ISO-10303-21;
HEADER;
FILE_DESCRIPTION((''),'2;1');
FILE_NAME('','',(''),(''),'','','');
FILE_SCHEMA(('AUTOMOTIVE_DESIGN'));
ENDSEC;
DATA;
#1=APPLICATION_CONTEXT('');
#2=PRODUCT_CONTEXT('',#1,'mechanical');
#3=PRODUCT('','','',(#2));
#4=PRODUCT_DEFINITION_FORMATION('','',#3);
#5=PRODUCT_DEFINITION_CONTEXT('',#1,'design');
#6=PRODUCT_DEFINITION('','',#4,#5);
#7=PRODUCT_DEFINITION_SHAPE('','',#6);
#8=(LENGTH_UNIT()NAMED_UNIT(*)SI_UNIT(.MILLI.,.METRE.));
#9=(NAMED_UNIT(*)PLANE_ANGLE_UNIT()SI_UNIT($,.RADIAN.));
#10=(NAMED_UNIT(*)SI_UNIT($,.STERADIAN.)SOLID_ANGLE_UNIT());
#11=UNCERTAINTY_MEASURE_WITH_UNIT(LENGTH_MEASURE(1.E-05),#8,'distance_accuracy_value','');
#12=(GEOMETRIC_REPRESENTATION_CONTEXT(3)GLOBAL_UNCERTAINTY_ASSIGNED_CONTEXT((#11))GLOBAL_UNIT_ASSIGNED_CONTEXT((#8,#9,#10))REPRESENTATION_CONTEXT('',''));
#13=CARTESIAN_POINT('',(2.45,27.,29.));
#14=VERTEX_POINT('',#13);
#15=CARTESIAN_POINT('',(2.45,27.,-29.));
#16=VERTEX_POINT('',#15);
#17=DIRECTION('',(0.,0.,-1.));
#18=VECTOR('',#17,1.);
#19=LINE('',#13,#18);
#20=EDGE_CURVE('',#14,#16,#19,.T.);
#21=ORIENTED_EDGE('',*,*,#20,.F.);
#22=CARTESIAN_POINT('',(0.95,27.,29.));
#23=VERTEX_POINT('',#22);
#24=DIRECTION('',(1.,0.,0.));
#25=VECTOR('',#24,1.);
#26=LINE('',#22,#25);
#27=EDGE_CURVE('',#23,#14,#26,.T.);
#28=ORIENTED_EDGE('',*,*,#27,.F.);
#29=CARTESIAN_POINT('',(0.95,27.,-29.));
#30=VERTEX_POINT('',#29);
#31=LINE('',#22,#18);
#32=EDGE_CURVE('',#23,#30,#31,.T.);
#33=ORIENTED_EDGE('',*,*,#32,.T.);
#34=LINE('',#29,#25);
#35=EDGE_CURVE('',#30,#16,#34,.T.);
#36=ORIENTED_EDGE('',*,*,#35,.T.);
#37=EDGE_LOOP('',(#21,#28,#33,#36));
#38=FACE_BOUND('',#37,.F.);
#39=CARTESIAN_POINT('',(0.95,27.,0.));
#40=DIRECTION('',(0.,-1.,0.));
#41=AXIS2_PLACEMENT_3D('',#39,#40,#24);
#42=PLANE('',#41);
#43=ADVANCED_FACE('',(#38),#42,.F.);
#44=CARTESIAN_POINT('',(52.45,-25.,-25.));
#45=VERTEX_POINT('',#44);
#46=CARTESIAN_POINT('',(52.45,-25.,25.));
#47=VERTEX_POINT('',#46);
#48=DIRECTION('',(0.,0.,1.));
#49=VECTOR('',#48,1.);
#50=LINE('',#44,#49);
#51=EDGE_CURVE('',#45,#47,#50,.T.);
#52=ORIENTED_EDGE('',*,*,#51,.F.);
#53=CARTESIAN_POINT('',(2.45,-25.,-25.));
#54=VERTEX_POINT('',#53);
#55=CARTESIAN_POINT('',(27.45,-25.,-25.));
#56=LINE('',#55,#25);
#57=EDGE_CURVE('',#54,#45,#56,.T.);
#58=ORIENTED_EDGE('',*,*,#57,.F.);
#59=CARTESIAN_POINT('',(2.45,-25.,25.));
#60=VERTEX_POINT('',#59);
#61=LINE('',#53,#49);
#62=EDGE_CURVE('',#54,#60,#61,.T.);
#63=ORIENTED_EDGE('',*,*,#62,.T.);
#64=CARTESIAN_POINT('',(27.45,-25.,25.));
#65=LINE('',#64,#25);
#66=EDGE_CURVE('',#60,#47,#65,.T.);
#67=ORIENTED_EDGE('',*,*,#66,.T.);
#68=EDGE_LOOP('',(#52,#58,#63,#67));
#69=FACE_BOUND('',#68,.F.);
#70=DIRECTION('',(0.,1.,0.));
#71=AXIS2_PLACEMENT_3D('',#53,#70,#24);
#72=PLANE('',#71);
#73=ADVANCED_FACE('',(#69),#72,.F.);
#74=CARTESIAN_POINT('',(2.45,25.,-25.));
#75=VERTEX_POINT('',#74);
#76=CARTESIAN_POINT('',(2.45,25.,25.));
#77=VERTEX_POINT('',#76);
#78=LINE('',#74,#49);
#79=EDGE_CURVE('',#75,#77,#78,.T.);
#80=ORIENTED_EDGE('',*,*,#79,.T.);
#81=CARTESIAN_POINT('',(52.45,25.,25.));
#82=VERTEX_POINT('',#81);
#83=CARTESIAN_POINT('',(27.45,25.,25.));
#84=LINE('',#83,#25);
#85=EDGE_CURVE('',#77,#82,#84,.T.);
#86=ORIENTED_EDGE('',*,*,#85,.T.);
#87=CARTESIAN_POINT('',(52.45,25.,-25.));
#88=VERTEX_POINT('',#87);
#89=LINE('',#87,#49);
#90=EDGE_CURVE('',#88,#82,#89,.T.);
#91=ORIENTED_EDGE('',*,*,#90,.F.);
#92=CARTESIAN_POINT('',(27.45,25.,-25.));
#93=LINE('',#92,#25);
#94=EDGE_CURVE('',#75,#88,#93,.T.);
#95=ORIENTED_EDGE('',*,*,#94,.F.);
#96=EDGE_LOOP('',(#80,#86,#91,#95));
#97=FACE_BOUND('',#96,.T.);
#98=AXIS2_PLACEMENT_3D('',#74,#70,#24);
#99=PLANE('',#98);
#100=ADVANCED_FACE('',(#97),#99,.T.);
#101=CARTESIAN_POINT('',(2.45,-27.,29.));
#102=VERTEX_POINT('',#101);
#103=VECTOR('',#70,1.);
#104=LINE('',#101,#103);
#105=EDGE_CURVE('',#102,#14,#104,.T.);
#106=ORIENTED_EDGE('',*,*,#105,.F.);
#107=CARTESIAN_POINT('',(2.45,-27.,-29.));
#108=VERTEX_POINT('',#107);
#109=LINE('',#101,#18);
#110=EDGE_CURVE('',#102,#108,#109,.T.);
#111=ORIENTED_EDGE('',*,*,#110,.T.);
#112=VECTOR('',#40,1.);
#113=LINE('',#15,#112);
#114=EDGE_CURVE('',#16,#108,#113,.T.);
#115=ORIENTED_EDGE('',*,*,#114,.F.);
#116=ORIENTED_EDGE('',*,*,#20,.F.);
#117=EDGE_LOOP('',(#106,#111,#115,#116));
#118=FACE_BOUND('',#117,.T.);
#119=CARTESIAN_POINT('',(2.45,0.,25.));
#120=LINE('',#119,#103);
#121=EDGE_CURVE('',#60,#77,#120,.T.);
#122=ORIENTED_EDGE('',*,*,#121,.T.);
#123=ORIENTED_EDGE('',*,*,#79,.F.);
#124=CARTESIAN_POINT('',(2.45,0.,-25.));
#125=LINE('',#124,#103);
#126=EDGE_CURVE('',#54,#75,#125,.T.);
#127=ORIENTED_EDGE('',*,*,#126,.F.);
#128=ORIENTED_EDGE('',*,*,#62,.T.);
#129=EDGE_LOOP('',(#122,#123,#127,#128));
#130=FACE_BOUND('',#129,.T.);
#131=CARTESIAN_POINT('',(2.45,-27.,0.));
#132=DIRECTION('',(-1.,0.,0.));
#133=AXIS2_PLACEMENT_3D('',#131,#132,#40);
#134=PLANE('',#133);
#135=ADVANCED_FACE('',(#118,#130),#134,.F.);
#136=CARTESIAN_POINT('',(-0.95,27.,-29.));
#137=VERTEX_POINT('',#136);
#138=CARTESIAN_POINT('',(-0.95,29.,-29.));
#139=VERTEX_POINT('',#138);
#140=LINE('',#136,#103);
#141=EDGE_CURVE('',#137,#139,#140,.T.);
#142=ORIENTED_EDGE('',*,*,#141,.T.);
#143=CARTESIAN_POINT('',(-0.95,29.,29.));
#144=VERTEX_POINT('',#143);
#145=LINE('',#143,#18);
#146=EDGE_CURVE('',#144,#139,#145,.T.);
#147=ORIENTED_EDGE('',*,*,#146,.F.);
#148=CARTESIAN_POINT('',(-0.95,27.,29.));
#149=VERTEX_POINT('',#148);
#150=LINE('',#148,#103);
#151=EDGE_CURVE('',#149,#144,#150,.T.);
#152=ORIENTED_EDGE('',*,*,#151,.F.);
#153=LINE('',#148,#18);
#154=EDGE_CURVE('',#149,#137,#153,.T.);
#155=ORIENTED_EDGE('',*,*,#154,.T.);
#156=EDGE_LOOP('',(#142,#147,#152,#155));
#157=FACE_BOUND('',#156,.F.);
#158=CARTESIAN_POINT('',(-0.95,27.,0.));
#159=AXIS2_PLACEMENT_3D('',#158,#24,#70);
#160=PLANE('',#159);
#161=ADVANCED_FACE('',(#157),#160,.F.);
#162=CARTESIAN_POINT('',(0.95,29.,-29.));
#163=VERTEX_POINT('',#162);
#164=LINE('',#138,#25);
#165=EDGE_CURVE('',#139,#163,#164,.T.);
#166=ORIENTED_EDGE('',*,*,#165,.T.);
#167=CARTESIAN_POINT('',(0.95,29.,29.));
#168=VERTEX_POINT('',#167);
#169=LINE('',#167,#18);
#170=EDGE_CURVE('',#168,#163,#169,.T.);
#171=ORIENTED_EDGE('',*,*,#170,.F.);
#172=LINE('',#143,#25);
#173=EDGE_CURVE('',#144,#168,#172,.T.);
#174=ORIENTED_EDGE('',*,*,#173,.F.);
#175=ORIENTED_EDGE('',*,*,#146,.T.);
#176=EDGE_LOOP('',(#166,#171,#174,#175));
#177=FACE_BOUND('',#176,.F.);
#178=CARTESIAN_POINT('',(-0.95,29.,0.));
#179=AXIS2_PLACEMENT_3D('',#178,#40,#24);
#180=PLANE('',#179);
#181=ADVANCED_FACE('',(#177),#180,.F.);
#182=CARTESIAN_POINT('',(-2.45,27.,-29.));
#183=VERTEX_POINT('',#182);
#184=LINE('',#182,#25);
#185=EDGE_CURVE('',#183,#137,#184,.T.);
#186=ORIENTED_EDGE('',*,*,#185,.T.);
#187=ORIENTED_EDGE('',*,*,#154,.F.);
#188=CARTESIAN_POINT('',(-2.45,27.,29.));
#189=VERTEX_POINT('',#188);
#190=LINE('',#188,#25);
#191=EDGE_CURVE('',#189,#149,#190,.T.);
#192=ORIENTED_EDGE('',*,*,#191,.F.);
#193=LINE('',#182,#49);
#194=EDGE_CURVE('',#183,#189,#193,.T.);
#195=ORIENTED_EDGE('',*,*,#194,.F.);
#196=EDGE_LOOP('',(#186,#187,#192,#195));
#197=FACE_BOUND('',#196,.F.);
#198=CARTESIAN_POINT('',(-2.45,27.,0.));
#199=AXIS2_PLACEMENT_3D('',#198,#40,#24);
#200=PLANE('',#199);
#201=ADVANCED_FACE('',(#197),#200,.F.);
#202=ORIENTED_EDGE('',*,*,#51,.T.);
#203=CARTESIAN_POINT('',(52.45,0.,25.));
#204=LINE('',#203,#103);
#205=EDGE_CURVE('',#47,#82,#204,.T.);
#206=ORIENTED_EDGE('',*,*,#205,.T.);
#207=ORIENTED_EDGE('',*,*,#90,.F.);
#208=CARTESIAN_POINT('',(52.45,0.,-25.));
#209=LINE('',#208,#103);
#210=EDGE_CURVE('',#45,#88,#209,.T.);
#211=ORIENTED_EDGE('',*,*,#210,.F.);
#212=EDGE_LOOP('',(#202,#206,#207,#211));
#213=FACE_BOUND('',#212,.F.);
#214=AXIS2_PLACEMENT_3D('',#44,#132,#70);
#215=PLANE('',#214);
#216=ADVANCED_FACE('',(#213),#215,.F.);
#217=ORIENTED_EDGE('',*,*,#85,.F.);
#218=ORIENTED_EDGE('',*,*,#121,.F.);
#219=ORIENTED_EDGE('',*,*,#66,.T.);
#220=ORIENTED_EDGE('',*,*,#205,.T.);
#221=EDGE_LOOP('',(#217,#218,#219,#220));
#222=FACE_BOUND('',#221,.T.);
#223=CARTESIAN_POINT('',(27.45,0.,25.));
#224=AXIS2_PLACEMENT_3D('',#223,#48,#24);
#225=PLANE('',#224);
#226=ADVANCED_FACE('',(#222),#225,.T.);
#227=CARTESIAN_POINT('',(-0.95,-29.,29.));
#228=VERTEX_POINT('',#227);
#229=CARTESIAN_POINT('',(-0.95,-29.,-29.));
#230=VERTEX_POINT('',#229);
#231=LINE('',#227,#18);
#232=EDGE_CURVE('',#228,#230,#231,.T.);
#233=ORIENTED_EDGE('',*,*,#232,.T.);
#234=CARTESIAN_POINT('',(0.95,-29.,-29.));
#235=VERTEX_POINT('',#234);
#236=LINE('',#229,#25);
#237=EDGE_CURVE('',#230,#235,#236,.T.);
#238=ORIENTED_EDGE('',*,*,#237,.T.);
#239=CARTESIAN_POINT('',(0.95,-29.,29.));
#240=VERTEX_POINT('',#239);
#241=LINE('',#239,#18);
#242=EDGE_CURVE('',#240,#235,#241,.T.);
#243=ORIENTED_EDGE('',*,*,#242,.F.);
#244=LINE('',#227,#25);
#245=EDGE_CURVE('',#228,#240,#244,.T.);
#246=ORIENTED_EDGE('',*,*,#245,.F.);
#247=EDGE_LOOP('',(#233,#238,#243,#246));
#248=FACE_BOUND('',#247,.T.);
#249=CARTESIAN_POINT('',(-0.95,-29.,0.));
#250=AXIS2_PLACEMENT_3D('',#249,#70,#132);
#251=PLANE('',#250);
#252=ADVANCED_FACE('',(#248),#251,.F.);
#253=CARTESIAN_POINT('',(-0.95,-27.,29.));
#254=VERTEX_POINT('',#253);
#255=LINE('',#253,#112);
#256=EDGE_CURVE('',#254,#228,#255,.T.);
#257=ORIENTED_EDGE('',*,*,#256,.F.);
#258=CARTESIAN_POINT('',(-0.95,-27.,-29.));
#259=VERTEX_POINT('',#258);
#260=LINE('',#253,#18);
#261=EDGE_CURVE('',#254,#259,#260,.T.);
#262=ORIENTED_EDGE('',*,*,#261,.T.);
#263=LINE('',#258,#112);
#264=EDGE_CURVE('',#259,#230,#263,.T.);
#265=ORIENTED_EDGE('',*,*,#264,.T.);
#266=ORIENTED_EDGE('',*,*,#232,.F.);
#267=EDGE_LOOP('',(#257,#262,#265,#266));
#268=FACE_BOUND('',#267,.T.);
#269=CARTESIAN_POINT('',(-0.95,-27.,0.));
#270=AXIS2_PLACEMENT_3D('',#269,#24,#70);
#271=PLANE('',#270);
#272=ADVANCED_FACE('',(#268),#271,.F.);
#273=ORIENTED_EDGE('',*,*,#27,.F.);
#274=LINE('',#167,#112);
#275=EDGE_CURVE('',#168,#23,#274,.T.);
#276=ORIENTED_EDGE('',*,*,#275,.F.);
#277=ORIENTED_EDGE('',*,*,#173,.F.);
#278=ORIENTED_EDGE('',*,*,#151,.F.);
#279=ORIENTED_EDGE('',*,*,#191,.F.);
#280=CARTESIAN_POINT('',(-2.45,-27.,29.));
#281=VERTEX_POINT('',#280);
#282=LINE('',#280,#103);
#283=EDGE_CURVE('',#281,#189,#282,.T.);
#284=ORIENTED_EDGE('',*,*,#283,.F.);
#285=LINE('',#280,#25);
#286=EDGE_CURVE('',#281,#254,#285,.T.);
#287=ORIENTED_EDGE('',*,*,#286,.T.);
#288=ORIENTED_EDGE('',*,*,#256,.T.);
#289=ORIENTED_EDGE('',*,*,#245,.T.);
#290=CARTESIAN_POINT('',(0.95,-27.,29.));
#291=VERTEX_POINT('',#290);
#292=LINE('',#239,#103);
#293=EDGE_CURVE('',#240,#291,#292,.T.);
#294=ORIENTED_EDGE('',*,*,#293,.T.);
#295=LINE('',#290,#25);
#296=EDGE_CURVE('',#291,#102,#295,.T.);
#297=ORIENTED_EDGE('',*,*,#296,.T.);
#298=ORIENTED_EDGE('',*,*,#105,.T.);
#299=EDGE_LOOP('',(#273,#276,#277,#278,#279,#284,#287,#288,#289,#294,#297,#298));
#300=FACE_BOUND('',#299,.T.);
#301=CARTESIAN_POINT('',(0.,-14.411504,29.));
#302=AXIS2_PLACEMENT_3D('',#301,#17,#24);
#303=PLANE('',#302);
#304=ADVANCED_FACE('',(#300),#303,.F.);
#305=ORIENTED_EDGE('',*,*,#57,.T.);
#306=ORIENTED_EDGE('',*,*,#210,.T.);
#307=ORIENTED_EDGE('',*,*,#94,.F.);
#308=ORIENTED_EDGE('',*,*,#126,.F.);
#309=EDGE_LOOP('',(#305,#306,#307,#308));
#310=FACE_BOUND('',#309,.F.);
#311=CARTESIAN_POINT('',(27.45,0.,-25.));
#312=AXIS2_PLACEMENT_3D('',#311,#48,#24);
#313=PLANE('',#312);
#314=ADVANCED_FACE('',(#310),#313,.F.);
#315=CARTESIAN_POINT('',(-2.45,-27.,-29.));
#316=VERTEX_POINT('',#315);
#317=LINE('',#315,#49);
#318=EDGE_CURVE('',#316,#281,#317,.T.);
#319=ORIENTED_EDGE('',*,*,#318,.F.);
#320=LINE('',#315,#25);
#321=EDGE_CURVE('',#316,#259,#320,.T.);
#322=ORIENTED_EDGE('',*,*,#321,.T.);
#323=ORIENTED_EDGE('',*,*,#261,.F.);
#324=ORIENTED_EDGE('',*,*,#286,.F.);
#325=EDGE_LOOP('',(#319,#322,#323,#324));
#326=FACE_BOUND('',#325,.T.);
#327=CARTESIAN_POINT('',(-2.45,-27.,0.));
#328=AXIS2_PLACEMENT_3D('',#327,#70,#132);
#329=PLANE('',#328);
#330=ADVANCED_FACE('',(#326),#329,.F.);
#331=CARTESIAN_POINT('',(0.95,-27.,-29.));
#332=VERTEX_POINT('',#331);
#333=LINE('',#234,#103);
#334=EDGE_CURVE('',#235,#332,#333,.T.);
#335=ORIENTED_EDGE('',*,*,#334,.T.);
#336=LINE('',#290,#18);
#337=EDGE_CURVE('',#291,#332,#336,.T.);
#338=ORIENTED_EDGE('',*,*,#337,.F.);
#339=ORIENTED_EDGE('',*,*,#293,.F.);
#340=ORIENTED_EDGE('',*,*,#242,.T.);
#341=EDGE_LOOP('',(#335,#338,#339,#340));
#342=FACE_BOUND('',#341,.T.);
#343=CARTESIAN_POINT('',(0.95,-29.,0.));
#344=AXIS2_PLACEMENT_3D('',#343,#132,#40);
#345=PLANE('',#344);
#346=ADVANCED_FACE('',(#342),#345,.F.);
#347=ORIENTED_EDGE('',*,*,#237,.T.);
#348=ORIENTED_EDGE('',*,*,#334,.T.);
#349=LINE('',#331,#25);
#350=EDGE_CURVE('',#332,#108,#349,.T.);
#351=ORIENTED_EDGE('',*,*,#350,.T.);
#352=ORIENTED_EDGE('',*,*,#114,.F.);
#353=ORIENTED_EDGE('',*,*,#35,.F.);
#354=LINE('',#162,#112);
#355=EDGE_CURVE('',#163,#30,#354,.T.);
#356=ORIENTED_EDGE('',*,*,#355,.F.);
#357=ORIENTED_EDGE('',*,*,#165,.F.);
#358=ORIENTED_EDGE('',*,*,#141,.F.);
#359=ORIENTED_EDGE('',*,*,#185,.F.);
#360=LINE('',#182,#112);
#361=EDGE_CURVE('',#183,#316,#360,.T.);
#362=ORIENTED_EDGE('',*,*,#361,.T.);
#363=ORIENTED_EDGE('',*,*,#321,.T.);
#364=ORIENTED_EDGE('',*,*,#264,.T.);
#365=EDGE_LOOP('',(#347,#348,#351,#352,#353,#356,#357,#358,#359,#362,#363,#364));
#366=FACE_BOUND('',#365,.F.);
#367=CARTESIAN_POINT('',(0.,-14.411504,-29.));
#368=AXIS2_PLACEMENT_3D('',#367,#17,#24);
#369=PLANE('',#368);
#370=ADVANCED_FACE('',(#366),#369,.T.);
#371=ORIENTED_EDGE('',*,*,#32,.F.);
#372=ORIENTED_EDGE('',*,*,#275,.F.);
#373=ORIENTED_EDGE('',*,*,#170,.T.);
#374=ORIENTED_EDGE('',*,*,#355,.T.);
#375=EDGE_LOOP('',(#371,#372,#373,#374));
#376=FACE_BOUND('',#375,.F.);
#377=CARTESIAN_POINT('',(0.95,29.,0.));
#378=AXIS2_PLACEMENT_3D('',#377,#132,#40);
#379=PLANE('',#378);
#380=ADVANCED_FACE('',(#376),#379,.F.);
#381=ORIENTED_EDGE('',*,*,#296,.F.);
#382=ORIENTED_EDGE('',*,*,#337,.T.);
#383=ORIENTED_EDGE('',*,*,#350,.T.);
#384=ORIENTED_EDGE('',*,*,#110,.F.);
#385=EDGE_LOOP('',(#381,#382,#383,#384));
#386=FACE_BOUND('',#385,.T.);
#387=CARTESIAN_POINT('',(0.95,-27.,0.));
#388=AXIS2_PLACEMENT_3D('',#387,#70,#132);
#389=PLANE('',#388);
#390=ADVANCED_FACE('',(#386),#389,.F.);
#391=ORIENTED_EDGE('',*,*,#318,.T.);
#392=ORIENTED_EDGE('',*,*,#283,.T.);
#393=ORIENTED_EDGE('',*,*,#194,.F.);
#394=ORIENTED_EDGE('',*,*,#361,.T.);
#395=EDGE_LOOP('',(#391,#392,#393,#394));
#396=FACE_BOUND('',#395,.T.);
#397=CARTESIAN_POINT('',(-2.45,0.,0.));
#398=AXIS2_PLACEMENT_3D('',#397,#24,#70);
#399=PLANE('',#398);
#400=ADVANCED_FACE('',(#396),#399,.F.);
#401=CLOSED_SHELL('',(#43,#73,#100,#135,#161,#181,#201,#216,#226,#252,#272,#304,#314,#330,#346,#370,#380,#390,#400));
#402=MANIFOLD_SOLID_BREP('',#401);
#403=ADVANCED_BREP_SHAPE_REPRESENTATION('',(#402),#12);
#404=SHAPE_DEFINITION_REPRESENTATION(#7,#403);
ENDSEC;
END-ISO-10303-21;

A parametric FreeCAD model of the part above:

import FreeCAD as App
import Part
import Sketcher

V = App.Vector
Q = App.Units.Quantity


def add_polygon(sketch, points):
    """Adds a closed chain of lines whose ends are joined by coincident constraints."""
    first, n = sketch.GeometryCount, len(points)
    for a, b in zip(points, points[1:] + points[:1]):
        sketch.addGeometry(Part.LineSegment(App.Vector(*a, 0), App.Vector(*b, 0)), False)
    for i in range(n):
        sketch.addConstraint(Sketcher.Constraint("Coincident", first + i, 2, first + (i + 1) % n, 1))

doc = App.newDocument("Part")
body = doc.addObject("PartDesign::Body", "Body")

# Sketch on XY plane
sketch1 = doc.addObject("Sketcher::SketchObject", "Sketch")
body.addObject(sketch1)
sketch1.AttachmentSupport = (doc.XY_Plane, [""])
sketch1.MapMode = "FlatFace"
sketch1.AttachmentOffset = App.Placement(V(0, 0, -25), App.Rotation())
add_polygon(sketch1, [(2, 25), (2, -25), (52, -25), (52, 25)])  # lines 0-3
sketch1.addConstraint([
    Sketcher.Constraint("Vertical", 0),
    Sketcher.Constraint("Horizontal", 1),
    Sketcher.Constraint("Vertical", 2),
    Sketcher.Constraint("Horizontal", 3),
    Sketcher.Constraint("Equal", 3, 0),
    Sketcher.Constraint("DistanceX", 1, 1, 1, 2, Q("50 mm")),
    Sketcher.Constraint("DistanceY", 0, 2, -1, 1, Q("25 mm")),
    Sketcher.Constraint("DistanceX", -1, 1, 0, 2, Q("2.45 mm")),
])
pad1 = doc.addObject("PartDesign::Pad", "Pad")
body.addObject(pad1)
pad1.Profile = sketch1
pad1.Length = 50
body2 = doc.addObject("PartDesign::Body", "Body001")

# Sketch on XY plane
sketch2 = doc.addObject("Sketcher::SketchObject", "Sketch001")
body2.addObject(sketch2)
sketch2.AttachmentSupport = (doc.getObject("XY_Plane001"), [""])
sketch2.MapMode = "FlatFace"
add_polygon(sketch2, [(-0.9, 27), (-2.5, 27), (-2.5, 0), (2.5, 0), (2.5, 27), (0.9, 27), (0.9, 29), (-0.9, 29)])  # lines 0-7
sketch2.addConstraint([
    Sketcher.Constraint("Horizontal", 0),
    Sketcher.Constraint("Vertical", 1),
    Sketcher.Constraint("Horizontal", 2),
    Sketcher.Constraint("Vertical", 3),
    Sketcher.Constraint("Horizontal", 4),
    Sketcher.Constraint("Vertical", 5),
    Sketcher.Constraint("Horizontal", 6),
    Sketcher.Constraint("Vertical", 7),
    Sketcher.Constraint("Symmetric", 1, 2, 2, 2, -1, 1),
    Sketcher.Constraint("Symmetric", 4, 2, 7, 2, -2),
    Sketcher.Constraint("DistanceY", 1, 2, 1, 1, Q("27 mm")),
    Sketcher.Constraint("DistanceY", 5, 1, 5, 2, Q("2 mm")),
    Sketcher.Constraint("DistanceX", 0, 2, 0, 1, Q("1.5 mm")),
    Sketcher.Constraint("DistanceX", 2, 1, 2, 2, Q("4.9 mm")),
])
pad2 = doc.addObject("PartDesign::Pad", "Pad001")
body2.addObject(pad2)
pad2.Profile = sketch2
pad2.Length = 58
pad2.Midplane = True
doc.recompute()

mirrored = doc.addObject("PartDesign::Mirrored", "Mirrored")
body2.addObject(mirrored)
mirrored.Originals = [pad2]
mirrored.MirrorPlane = (doc.getObject("XZ_Plane001"), [""])
body2.Tip = mirrored
doc.recompute()

boolean = doc.addObject("PartDesign::Boolean", "Boolean")
body2.addObject(boolean)
boolean.Type = "Fuse"
boolean.addObjects([body])

doc.recompute()
